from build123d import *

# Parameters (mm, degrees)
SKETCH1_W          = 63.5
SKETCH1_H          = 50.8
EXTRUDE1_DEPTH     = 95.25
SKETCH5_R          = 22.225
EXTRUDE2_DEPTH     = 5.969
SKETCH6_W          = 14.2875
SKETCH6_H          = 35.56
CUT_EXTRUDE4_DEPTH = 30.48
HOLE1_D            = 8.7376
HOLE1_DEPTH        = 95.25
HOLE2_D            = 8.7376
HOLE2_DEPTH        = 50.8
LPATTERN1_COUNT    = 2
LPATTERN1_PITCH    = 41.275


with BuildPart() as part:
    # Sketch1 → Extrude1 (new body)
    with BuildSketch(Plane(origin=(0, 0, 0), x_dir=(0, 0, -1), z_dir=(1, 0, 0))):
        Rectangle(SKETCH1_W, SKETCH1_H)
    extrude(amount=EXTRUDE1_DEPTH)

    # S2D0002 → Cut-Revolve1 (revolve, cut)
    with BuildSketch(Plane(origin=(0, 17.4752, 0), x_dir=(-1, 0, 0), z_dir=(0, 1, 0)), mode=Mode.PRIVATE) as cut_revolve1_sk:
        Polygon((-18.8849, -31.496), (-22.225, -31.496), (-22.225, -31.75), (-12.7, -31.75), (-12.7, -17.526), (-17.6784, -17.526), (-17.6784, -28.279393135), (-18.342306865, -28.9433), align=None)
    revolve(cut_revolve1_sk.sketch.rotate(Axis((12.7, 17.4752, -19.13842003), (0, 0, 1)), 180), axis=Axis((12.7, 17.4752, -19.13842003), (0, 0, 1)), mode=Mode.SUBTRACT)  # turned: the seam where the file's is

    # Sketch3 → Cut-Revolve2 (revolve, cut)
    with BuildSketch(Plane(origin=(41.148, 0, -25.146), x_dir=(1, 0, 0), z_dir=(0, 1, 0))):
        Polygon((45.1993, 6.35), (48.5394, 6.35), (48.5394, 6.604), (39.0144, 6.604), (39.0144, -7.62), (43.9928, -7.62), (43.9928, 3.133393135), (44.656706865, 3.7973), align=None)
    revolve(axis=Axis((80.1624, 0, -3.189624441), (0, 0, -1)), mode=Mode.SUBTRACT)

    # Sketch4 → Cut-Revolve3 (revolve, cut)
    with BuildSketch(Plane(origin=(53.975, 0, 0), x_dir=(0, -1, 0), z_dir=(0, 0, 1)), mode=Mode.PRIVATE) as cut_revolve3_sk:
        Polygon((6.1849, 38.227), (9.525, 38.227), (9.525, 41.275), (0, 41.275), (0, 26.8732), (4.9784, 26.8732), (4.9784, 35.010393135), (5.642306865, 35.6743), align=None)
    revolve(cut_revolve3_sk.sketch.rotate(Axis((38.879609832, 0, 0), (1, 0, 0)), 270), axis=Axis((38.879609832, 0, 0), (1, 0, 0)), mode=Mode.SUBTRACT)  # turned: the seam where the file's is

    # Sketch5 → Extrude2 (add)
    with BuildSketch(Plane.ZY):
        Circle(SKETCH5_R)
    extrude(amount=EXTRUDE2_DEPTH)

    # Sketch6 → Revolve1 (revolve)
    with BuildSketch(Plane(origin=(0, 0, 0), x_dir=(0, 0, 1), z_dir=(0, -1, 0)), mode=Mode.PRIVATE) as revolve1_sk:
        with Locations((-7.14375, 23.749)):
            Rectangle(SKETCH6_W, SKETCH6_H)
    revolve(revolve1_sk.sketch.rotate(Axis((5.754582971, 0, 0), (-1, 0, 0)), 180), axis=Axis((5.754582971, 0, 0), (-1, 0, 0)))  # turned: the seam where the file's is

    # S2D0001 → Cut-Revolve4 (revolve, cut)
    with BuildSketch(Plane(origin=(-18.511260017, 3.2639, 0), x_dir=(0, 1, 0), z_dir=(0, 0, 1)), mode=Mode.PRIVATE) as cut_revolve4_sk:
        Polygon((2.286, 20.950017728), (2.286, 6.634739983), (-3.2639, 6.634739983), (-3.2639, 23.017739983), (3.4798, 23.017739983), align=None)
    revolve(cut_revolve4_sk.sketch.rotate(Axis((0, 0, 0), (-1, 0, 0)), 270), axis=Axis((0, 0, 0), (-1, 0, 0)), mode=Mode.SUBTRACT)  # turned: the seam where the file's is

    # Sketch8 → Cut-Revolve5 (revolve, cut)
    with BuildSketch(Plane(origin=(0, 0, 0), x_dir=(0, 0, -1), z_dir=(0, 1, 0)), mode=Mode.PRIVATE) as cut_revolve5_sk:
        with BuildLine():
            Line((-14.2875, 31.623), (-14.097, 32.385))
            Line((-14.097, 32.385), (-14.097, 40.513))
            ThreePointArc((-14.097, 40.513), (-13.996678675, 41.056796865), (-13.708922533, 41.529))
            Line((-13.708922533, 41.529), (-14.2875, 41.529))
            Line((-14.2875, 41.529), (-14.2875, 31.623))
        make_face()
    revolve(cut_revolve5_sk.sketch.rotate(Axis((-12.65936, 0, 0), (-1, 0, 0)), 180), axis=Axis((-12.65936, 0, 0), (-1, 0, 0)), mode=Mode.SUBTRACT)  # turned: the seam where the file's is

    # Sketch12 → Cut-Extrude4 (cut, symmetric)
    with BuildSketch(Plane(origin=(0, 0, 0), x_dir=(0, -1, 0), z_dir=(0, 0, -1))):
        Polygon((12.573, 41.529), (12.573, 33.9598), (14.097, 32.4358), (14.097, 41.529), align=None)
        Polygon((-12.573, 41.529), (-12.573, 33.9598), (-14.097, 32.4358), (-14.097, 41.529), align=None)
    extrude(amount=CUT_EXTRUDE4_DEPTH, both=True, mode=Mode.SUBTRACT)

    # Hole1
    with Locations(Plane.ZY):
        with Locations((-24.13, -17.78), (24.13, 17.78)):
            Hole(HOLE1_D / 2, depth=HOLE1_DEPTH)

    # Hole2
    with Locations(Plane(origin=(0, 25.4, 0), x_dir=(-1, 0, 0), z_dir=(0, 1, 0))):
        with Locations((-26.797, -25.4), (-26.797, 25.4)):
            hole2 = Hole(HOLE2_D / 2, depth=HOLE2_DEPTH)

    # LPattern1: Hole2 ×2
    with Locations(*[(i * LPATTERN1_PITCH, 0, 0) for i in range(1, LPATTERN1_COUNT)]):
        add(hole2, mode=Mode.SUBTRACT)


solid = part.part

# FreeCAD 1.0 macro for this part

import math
import FreeCAD as App
import Part
import Sketcher

V = App.Vector
Q = App.Units.Quantity


def add_polygon(sketch, points):
    """Adds a closed chain of lines whose ends are joined by coincident constraints."""
    first, n = sketch.GeometryCount, len(points)
    for a, b in zip(points, points[1:] + points[:1]):
        sketch.addGeometry(Part.LineSegment(App.Vector(*a, 0), App.Vector(*b, 0)), False)
    for i in range(n):
        sketch.addConstraint(Sketcher.Constraint("Coincident", first + i, 2, first + (i + 1) % n, 1))

doc = App.newDocument("Part")
body = doc.addObject("PartDesign::Body", "Body")

# Sketch on YZ plane
sketch1 = body.newObject("Sketcher::SketchObject", "Sketch")
sketch1.AttachmentSupport = (doc.getObject("YZ_Plane"), [""])
sketch1.MapMode = "FlatFace"
add_polygon(sketch1, [(25, 32), (-25, 32), (-25, -32), (25, -32)])  # lines 0-3
sketch1.addConstraint(Sketcher.Constraint("Horizontal", 0))
sketch1.addConstraint(Sketcher.Constraint("Vertical", 1))
sketch1.addConstraint(Sketcher.Constraint("Horizontal", 2))
sketch1.addConstraint(Sketcher.Constraint("Vertical", 3))
sketch1.addConstraint(Sketcher.Constraint("Symmetric", 0, 2, 2, 2, -1, 1))
sketch1.addConstraint(Sketcher.Constraint("DistanceX", 0, 2, 0, 1, Q("2 in")))
sketch1.addConstraint(Sketcher.Constraint("DistanceY", 1, 2, 1, 1, Q("2.5 in")))
pad1 = body.newObject("PartDesign::Pad", "Pad")
pad1.Profile = sketch1
pad1.Length = Q("3.75 in")

# Sketch on XZ plane
sketch2 = body.newObject("Sketcher::SketchObject", "Sketch001")
sketch2.AttachmentSupport = (doc.getObject("XZ_Plane"), [""])
sketch2.MapMode = "FlatFace"
sketch2.AttachmentOffset = App.Placement(V(0, 0, -0.688 * 25.4), App.Rotation())
add_polygon(sketch2, [(18.88, -31.5), (22.23, -31.5), (22.23, -31.75), (12.7, -31.75), (12.7, -17.53), (17.68, -17.53), (17.68, -28.28), (18.34, -28.94)])  # lines 0-7
sketch2.addGeometry(Part.LineSegment(V(12.7, -31.75, 0), V(12.7, -17.53, 0)), True)  # axis
sketch2.addConstraint(Sketcher.Constraint("Horizontal", 0))
sketch2.addConstraint(Sketcher.Constraint("Vertical", 1))
sketch2.addConstraint(Sketcher.Constraint("Horizontal", 2))
sketch2.addConstraint(Sketcher.Constraint("Vertical", 3))
sketch2.addConstraint(Sketcher.Constraint("Horizontal", 4))
sketch2.addConstraint(Sketcher.Constraint("Vertical", 5))
sketch2.addConstraint(Sketcher.Constraint("Vertical", 8))
sketch2.addConstraint(Sketcher.Constraint("Coincident", 8, 1, 2, 2))
sketch2.addConstraint(Sketcher.Constraint("Horizontal", 4, 2, 8, 2))
sketch2.addConstraint(Sketcher.Constraint("Angle", 6, Q("-45 deg")))
sketch2.addConstraint(Sketcher.Constraint("Angle", 7, Q("-78 deg")))
sketch2.addConstraint(Sketcher.Constraint("DistanceY", 1, 2, 1, 1, Q("0.01 in")))
sketch2.addConstraint(Sketcher.Constraint("DistanceY", 3, 1, 3, 2, Q("0.56 in")))
sketch2.addConstraint(Sketcher.Constraint("DistanceX", -1, 1, 2, 2, Q("0.5 in")))
sketch2.addConstraint(Sketcher.Constraint("DistanceX", 2, 2, 2, 1, Q("0.375 in")))
sketch2.addConstraint(Sketcher.Constraint("DistanceX", 4, 1, 4, 2, Q("0.196 in")))
sketch2.addConstraint(Sketcher.Constraint("DistanceY", 0, 2, -1, 1, Q("1.24 in")))
sketch2.addConstraint(Sketcher.Constraint("DistanceX", 0, 1, 0, 2, Q("0.1315 in")))
sketch2.addConstraint(Sketcher.Constraint("DistanceY", 6, 2, -1, 1, Q("1.1395 in")))
groove = body.newObject("PartDesign::Groove", "Groove")
groove.Profile = sketch2
groove.ReferenceAxis = (sketch2, ["Axis0"])
groove.Angle = 360

# Sketch on XZ plane
sketch3 = body.newObject("Sketcher::SketchObject", "Sketch002")
sketch3.AttachmentSupport = (doc.getObject("XZ_Plane"), [""])
sketch3.MapMode = "FlatFace"
add_polygon(sketch3, [(86.35, -31.5), (89.69, -31.5), (89.69, -31.75), (80.16, -31.75), (80.16, -17.53), (85.14, -17.53), (85.14, -28.28), (85.8, -28.94)])  # lines 0-7
sketch3.addGeometry(Part.LineSegment(V(80.16, -17.53, 0), V(80.16, -31.75, 0)), True)  # axis
sketch3.addConstraint(Sketcher.Constraint("Horizontal", 0))
sketch3.addConstraint(Sketcher.Constraint("Vertical", 1))
sketch3.addConstraint(Sketcher.Constraint("Horizontal", 2))
sketch3.addConstraint(Sketcher.Constraint("Vertical", 3))
sketch3.addConstraint(Sketcher.Constraint("Horizontal", 4))
sketch3.addConstraint(Sketcher.Constraint("Vertical", 5))
sketch3.addConstraint(Sketcher.Constraint("Vertical", 8))
sketch3.addConstraint(Sketcher.Constraint("Coincident", 8, 1, 3, 2))
sketch3.addConstraint(Sketcher.Constraint("Horizontal", 1, 2, 8, 2))
sketch3.addConstraint(Sketcher.Constraint("Angle", 6, Q("-45 deg")))
sketch3.addConstraint(Sketcher.Constraint("Angle", 7, Q("-78 deg")))
sketch3.addConstraint(Sketcher.Constraint("DistanceY", 1, 2, 1, 1, Q("0.01 in")))
sketch3.addConstraint(Sketcher.Constraint("DistanceY", 3, 1, 3, 2, Q("0.56 in")))
sketch3.addConstraint(Sketcher.Constraint("DistanceX", 2, 2, 2, 1, Q("0.375 in")))
sketch3.addConstraint(Sketcher.Constraint("DistanceX", 4, 1, 4, 2, Q("0.196 in")))
sketch3.addConstraint(Sketcher.Constraint("DistanceY", 0, 2, -1, 1, Q("1.24 in")))
sketch3.addConstraint(Sketcher.Constraint("DistanceX", 0, 1, 0, 2, Q("0.1315 in")))
sketch3.addConstraint(Sketcher.Constraint("DistanceX", -1, 1, 0, 2, Q("3.531 in")))
sketch3.addConstraint(Sketcher.Constraint("DistanceY", 6, 2, -1, 1, Q("1.1395 in")))
groove2 = body.newObject("PartDesign::Groove", "Groove001")
groove2.Profile = sketch3
groove2.ReferenceAxis = (sketch3, ["Axis0"])
groove2.Angle = 360

# Sketch on XY plane
sketch4 = body.newObject("Sketcher::SketchObject", "Sketch003")
sketch4.AttachmentSupport = (doc.getObject("XY_Plane"), [""])
sketch4.MapMode = "FlatFace"
add_polygon(sketch4, [(92.2, -6.2), (92.2, -9.5), (95.2, -9.5), (95.2, 0), (80.8, 0), (80.8, -5), (89, -5), (89.6, -5.6)])  # lines 0-7
sketch4.addConstraint(Sketcher.Constraint("Vertical", 0))
sketch4.addConstraint(Sketcher.Constraint("Horizontal", 1))
sketch4.addConstraint(Sketcher.Constraint("Vertical", 2))
sketch4.addConstraint(Sketcher.Constraint("Horizontal", 3))
sketch4.addConstraint(Sketcher.Constraint("Vertical", 4))
sketch4.addConstraint(Sketcher.Constraint("Horizontal", 5))
sketch4.addConstraint(Sketcher.Constraint("PointOnObject", 2, 2, -1))
sketch4.addConstraint(Sketcher.Constraint("Angle", 6, Q("-45 deg")))
sketch4.addConstraint(Sketcher.Constraint("Angle", 7, Q("-12 deg")))
sketch4.addConstraint(Sketcher.Constraint("DistanceX", 1, 1, 1, 2, Q("0.12 in")))
sketch4.addConstraint(Sketcher.Constraint("DistanceX", 3, 2, 3, 1, Q("0.567 in")))
sketch4.addConstraint(Sketcher.Constraint("DistanceY", 2, 1, 2, 2, Q("0.375 in")))
sketch4.addConstraint(Sketcher.Constraint("DistanceY", 4, 2, 4, 1, Q("0.196 in")))
sketch4.addConstraint(Sketcher.Constraint("DistanceX", -1, 1, 0, 2, Q("3.63 in")))
sketch4.addConstraint(Sketcher.Constraint("DistanceY", 0, 2, 0, 1, Q("0.1315 in")))
sketch4.addConstraint(Sketcher.Constraint("DistanceX", -1, 1, 6, 2, Q("3.5295 in")))
groove3 = body.newObject("PartDesign::Groove", "Groove002")
groove3.Profile = sketch4
groove3.ReferenceAxis = (sketch4, ["H_Axis"])
groove3.Angle = 360

# Sketch on YZ plane
sketch5 = body.newObject("Sketcher::SketchObject", "Sketch004")
sketch5.AttachmentSupport = (doc.getObject("YZ_Plane"), [""])
sketch5.MapMode = "FlatFace"
sketch5.addGeometry(Part.Circle(V(0, 0, 0), V(0, 0, 1), 22), False)
sketch5.addConstraint(Sketcher.Constraint("Coincident", 0, 3, -1, 1))
sketch5.addConstraint(Sketcher.Constraint("Diameter", 0, Q("1.75 in")))
pad2 = body.newObject("PartDesign::Pad", "Pad001")
pad2.Profile = sketch5
pad2.Length = Q("0.235 in")
pad2.Reversed = True

# Sketch on XZ plane
sketch6 = body.newObject("Sketcher::SketchObject", "Sketch005")
sketch6.AttachmentSupport = (doc.getObject("XZ_Plane"), [""])
sketch6.MapMode = "FlatFace"
add_polygon(sketch6, [(-42, -14), (-6, -14), (-6, 0), (-42, 0)])  # lines 0-3
sketch6.addConstraint(Sketcher.Constraint("Horizontal", 0))
sketch6.addConstraint(Sketcher.Constraint("Vertical", 1))
sketch6.addConstraint(Sketcher.Constraint("Horizontal", 2))
sketch6.addConstraint(Sketcher.Constraint("Vertical", 3))
sketch6.addConstraint(Sketcher.Constraint("PointOnObject", 1, 2, -1))
sketch6.addConstraint(Sketcher.Constraint("DistanceX", 0, 1, 0, 2, Q("1.4 in")))
sketch6.addConstraint(Sketcher.Constraint("DistanceY", 1, 1, 1, 2, Q("0.5625 in")))
sketch6.addConstraint(Sketcher.Constraint("DistanceX", 0, 2, -1, 1, Q("0.235 in")))
revolution = body.newObject("PartDesign::Revolution", "Revolution")
revolution.Profile = sketch6
revolution.ReferenceAxis = (sketch6, ["H_Axis"])
revolution.Angle = 360

# Sketch on XY plane
sketch7 = body.newObject("Sketcher::SketchObject", "Sketch006")
sketch7.AttachmentSupport = (doc.getObject("XY_Plane"), [""])
sketch7.MapMode = "FlatFace"
add_polygon(sketch7, [(-25.1, 5.5), (-39.5, 5.5), (-41.5, 6.7), (-41.5, 0), (-25.1, 0)])  # lines 0-4
sketch7.addConstraint(Sketcher.Constraint("Horizontal", 0))
sketch7.addConstraint(Sketcher.Constraint("Vertical", 2))
sketch7.addConstraint(Sketcher.Constraint("Horizontal", 3))
sketch7.addConstraint(Sketcher.Constraint("Vertical", 4))
sketch7.addConstraint(Sketcher.Constraint("PointOnObject", 2, 2, -1))
sketch7.addConstraint(Sketcher.Constraint("Angle", 1, Q("150 deg")))
sketch7.addConstraint(Sketcher.Constraint("DistanceX", 3, 1, 3, 2, Q("0.645 in")))
sketch7.addConstraint(Sketcher.Constraint("DistanceX", 3, 2, -1, 1, Q("0.99 in")))
sketch7.addConstraint(Sketcher.Constraint("Distance", 1, Q("0.094 in")))
sketch7.addConstraint(Sketcher.Constraint("DistanceY", 2, 2, 2, 1, Q("0.2655 in")))
groove4 = body.newObject("PartDesign::Groove", "Groove003")
groove4.Profile = sketch7
groove4.ReferenceAxis = (sketch7, ["H_Axis"])
groove4.Angle = 360

# Sketch on XZ plane
sketch8 = body.newObject("Sketcher::SketchObject", "Sketch007")
sketch8.AttachmentSupport = (doc.getObject("XZ_Plane"), [""])
sketch8.MapMode = "FlatFace"
sketch8.addGeometry(Part.LineSegment(V(-31.6, 14.3, 0), V(-32.4, 14.1, 0)), False)
sketch8.addGeometry(Part.LineSegment(V(-32.4, 14.1, 0), V(-40.5, 14.1, 0)), False)
sketch8.addGeometry(Part.ArcOfCircle(Part.Circle(V(-40.5, 12.6, 0), V(0, 0, 1), 1.5), math.radians(90), math.radians(132)), False)
sketch8.addGeometry(Part.LineSegment(V(-41.5, 13.7, 0), V(-41.5, 14.3, 0)), False)
sketch8.addGeometry(Part.LineSegment(V(-41.5, 14.3, 0), V(-31.6, 14.3, 0)), False)
sketch8.addConstraint(Sketcher.Constraint("Coincident", 0, 2, 1, 1))
sketch8.addConstraint(Sketcher.Constraint("Tangent", 1, 2, 2, 1))
sketch8.addConstraint(Sketcher.Constraint("Coincident", 2, 2, 3, 1))
sketch8.addConstraint(Sketcher.Constraint("Coincident", 3, 2, 4, 1))
sketch8.addConstraint(Sketcher.Constraint("Coincident", 4, 2, 0, 1))
sketch8.addConstraint(Sketcher.Constraint("Horizontal", 1))
sketch8.addConstraint(Sketcher.Constraint("Vertical", 3))
sketch8.addConstraint(Sketcher.Constraint("Horizontal", 4))
sketch8.addConstraint(Sketcher.Constraint("Radius", 2, Q("0.06 in")))
sketch8.addConstraint(Sketcher.Constraint("DistanceX", 1, 2, 1, 1, Q("0.32 in")))
sketch8.addConstraint(Sketcher.Constraint("DistanceX", 4, 1, 4, 2, Q("0.39 in")))
sketch8.addConstraint(Sketcher.Constraint("DistanceX", 2, 2, 1, 2, Q("0.04 in")))
sketch8.addConstraint(Sketcher.Constraint("DistanceX", 2, 3, -1, 1, Q("1.595 in")))
sketch8.addConstraint(Sketcher.Constraint("DistanceY", -1, 1, 2, 3, Q("0.495 in")))
sketch8.addConstraint(Sketcher.Constraint("DistanceY", -1, 1, 3, 2, Q("0.5625 in")))
groove5 = body.newObject("PartDesign::Groove", "Groove004")
groove5.Profile = sketch8
groove5.ReferenceAxis = (sketch8, ["H_Axis"])
groove5.Angle = 360

# Sketch on XY plane
sketch9 = body.newObject("Sketcher::SketchObject", "Sketch008")
sketch9.AttachmentSupport = (doc.getObject("XY_Plane"), [""])
sketch9.MapMode = "FlatFace"
add_polygon(sketch9, [(-41.5, -12.6), (-34, -12.6), (-32.4, -14.1), (-41.5, -14.1)])  # lines 0-3
add_polygon(sketch9, [(-34, 12.6), (-41.5, 12.6), (-41.5, 14.1), (-32.4, 14.1)])  # lines 4-7
sketch9.addConstraint(Sketcher.Constraint("Horizontal", 0))
sketch9.addConstraint(Sketcher.Constraint("Horizontal", 2))
sketch9.addConstraint(Sketcher.Constraint("Vertical", 3))
sketch9.addConstraint(Sketcher.Constraint("Horizontal", 4))
sketch9.addConstraint(Sketcher.Constraint("Vertical", 5))
sketch9.addConstraint(Sketcher.Constraint("Horizontal", 6))
sketch9.addConstraint(Sketcher.Constraint("Symmetric", 3, 2, 4, 2, -1))
sketch9.addConstraint(Sketcher.Constraint("Symmetric", 1, 2, 6, 2, -1))
sketch9.addConstraint(Sketcher.Constraint("Perpendicular", 1, 7))
sketch9.addConstraint(Sketcher.Constraint("Vertical", 0, 2, 7, 2))
sketch9.addConstraint(Sketcher.Constraint("DistanceY", 3, 1, 3, 2, Q("0.06 in")))
sketch9.addConstraint(Sketcher.Constraint("DistanceX", 0, 1, 0, 2, Q("0.298 in")))
sketch9.addConstraint(Sketcher.Constraint("DistanceY", 3, 2, 4, 2, Q("0.99 in")))
sketch9.addConstraint(Sketcher.Constraint("DistanceX", 0, 2, -1, 1, Q("1.337 in")))
pocket1 = body.newObject("PartDesign::Pocket", "Pocket")
pocket1.Profile = sketch9
pocket1.Length = Q("2.4 in")
pocket1.Midplane = True

# Sketch on YZ plane
sketch10 = body.newObject("Sketcher::SketchObject", "Sketch009")
sketch10.AttachmentSupport = (doc.getObject("YZ_Plane"), [""])
sketch10.MapMode = "FlatFace"
sketch10.addGeometry(Part.Circle(V(-17.8, -24.1, 0), V(0, 0, 1), 4.4), False)
sketch10.addGeometry(Part.Circle(V(17.8, 24.1, 0), V(0, 0, 1), 4.4), False)
sketch10.addConstraint(Sketcher.Constraint("Equal", 0, 1))
sketch10.addConstraint(Sketcher.Constraint("Symmetric", 0, 3, 1, 3, -1, 1))
sketch10.addConstraint(Sketcher.Constraint("Diameter", 0, Q("0.344 in")))
sketch10.addConstraint(Sketcher.Constraint("DistanceX", 0, 3, -1, 1, Q("0.7 in")))
sketch10.addConstraint(Sketcher.Constraint("DistanceY", 0, 3, 1, 3, Q("1.9 in")))
doc.recompute()
hole = body.newObject("PartDesign::Hole", "Hole")
hole.Profile = sketch10
hole.ThreadType = "None"
hole.Diameter = Q("0.344 in")
hole.DepthType = "Dimension"
hole.Depth = Q("3.75 in")
hole.DrillPoint = "Flat"
hole.Reversed = True

# Sketch on XZ plane
sketch11 = body.newObject("Sketcher::SketchObject", "Sketch010")
sketch11.AttachmentSupport = (doc.getObject("XZ_Plane"), [""])
sketch11.MapMode = "FlatFace"
sketch11.AttachmentOffset = App.Placement(V(0, 0, -1 * 25.4), App.Rotation())
sketch11.addGeometry(Part.Circle(V(26.8, -25.4, 0), V(0, 0, 1), 4.4), False)
sketch11.addGeometry(Part.Circle(V(26.8, 25.4, 0), V(0, 0, 1), 4.4), False)
sketch11.addConstraint(Sketcher.Constraint("Equal", 0, 1))
sketch11.addConstraint(Sketcher.Constraint("Symmetric", 0, 3, 1, 3, -1))
sketch11.addConstraint(Sketcher.Constraint("Diameter", 0, Q("0.344 in")))
sketch11.addConstraint(Sketcher.Constraint("DistanceY", 0, 3, -1, 1, Q("1 in")))
sketch11.addConstraint(Sketcher.Constraint("DistanceX", -1, 1, 0, 3, Q("1.055 in")))
doc.recompute()
hole2 = body.newObject("PartDesign::Hole", "Hole001")
hole2.Profile = sketch11
hole2.ThreadType = "None"
hole2.Diameter = Q("0.344 in")
hole2.DepthType = "Dimension"
hole2.Depth = Q("2 in")
hole2.DrillPoint = "Flat"
hole2.Reversed = True
doc.recompute()

linearpattern = body.newObject("PartDesign::LinearPattern", "LinearPattern")
linearpattern.Originals = [hole2]
linearpattern.Direction = (doc.getObject("X_Axis"), [""])
linearpattern.Mode = "offset"
linearpattern.Offset = Q("1.625 in")
linearpattern.Occurrences = 2
body.Tip = linearpattern

doc.recompute()
